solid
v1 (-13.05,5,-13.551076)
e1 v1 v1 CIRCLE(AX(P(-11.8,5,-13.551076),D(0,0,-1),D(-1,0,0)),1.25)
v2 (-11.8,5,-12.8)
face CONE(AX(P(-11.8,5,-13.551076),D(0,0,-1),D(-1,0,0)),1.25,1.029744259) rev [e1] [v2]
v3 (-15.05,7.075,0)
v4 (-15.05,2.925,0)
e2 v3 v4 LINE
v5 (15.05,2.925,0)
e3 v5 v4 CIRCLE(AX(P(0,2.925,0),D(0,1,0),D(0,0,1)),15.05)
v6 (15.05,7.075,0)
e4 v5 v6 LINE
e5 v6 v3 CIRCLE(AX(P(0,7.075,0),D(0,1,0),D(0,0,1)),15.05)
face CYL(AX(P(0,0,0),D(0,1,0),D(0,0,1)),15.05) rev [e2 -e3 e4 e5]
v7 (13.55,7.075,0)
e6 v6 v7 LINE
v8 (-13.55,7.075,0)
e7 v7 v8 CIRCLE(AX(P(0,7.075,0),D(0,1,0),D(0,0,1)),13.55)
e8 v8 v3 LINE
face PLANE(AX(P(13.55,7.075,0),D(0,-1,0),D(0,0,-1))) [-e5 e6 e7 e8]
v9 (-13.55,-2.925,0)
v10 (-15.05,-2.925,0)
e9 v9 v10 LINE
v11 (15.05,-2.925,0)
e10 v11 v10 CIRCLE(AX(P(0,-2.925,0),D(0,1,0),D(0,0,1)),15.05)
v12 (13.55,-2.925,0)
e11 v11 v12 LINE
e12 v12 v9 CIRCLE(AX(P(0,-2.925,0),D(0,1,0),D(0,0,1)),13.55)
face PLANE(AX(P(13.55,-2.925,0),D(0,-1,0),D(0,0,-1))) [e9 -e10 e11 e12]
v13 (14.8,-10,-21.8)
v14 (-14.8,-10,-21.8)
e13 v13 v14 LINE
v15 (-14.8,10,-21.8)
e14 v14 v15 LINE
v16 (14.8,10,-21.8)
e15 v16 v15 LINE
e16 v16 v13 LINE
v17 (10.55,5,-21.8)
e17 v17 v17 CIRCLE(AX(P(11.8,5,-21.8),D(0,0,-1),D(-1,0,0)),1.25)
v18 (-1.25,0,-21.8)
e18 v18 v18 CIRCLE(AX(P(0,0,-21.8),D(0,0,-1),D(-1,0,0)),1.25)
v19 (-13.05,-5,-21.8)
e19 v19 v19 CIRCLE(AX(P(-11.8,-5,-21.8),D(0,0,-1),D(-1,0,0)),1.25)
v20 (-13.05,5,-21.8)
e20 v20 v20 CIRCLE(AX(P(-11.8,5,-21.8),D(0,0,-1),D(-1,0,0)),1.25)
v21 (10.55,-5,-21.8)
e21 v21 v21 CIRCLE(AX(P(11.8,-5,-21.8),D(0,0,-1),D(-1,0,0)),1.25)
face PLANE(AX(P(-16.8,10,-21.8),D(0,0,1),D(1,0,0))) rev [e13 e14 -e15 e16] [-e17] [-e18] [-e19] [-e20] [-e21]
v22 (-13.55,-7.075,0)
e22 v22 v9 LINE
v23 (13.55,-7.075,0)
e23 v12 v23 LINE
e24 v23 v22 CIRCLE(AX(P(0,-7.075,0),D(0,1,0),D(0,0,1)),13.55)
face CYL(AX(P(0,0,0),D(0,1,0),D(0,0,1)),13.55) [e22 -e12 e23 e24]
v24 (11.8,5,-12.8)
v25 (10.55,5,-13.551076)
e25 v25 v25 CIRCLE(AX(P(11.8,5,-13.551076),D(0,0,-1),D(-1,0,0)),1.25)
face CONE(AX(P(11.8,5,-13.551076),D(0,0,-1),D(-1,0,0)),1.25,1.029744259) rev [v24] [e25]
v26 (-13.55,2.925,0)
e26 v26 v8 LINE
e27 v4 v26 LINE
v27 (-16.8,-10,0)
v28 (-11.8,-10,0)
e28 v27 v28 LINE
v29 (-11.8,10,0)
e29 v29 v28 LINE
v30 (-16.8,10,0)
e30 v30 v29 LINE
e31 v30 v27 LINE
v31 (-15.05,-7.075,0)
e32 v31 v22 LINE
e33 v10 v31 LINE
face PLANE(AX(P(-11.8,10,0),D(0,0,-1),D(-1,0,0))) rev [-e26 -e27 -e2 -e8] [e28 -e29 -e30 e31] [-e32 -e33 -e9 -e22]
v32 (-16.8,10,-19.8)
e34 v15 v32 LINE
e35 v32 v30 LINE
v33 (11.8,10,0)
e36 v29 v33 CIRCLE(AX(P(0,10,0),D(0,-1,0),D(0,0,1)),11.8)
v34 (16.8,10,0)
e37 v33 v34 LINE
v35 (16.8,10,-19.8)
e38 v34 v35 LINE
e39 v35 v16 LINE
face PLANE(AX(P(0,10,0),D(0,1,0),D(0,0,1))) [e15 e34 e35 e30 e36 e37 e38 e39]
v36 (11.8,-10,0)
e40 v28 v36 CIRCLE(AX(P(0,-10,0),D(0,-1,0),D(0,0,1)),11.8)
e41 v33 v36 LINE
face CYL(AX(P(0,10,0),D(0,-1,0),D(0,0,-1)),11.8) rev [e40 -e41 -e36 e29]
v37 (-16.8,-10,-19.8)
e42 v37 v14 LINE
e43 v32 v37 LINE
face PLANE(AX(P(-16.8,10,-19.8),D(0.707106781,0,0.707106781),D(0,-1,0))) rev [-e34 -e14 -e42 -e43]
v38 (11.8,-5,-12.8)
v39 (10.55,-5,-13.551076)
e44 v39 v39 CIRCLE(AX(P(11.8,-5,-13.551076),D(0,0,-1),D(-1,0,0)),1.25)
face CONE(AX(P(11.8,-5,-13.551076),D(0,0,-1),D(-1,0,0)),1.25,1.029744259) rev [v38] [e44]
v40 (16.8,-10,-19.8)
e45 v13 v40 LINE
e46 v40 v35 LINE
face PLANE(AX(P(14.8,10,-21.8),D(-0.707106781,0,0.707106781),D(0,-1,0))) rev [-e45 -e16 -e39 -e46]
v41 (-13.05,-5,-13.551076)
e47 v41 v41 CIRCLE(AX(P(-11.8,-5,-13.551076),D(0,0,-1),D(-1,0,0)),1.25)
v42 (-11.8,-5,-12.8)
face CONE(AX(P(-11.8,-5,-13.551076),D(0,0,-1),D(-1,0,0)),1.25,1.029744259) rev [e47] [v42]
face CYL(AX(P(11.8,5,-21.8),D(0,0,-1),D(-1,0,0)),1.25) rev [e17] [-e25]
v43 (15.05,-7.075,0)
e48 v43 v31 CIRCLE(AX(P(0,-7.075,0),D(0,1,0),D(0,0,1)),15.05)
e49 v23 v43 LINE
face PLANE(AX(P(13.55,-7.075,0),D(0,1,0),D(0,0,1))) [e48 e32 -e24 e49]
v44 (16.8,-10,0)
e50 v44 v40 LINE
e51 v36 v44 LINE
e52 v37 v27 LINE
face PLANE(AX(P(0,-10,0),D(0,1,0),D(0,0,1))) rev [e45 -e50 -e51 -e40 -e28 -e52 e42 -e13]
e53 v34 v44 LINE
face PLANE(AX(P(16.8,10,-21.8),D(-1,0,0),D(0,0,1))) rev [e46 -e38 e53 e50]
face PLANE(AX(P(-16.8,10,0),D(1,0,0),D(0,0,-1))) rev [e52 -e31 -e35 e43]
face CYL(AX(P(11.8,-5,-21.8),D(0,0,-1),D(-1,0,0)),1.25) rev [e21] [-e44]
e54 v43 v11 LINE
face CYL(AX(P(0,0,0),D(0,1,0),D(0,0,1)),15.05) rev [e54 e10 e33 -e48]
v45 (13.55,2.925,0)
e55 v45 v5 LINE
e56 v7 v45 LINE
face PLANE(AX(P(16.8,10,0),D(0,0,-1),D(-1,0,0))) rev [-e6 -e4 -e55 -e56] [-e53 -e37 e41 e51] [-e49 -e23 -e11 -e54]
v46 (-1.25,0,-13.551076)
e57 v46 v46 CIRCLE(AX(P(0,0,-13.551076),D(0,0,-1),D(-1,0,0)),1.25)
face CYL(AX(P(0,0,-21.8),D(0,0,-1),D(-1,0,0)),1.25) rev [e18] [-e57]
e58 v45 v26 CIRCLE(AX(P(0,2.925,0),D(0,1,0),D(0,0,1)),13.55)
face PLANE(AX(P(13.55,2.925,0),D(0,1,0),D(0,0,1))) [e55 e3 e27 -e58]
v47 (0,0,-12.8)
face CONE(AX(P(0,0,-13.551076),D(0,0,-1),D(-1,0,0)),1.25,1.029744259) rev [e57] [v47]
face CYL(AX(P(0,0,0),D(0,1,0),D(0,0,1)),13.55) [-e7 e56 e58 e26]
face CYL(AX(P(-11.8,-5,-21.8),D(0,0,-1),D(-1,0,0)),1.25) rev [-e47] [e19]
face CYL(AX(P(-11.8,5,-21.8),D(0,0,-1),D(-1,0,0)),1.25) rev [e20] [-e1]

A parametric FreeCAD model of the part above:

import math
import FreeCAD as App
import Part
import Sketcher
from FreeCAD import Vector


def edges_at(feature, points):
    """Names of the edges that pass closest to the given points."""
    edges = feature.Shape.Edges
    near = lambda p: min(range(len(edges)), key=lambda i: edges[i].distToShape(Part.Vertex(*p))[0])
    return sorted({f"Edge{near(p) + 1}" for p in points})

doc = App.newDocument("Part")
params = doc.addObject("Spreadsheet::Sheet", "Params")
for row, (alias, value) in enumerate([
    ("sketch1_radius", "11.8 mm"),
    ("sketch1_width", "5 mm"),
    ("sketch1_height", "21.8 mm"),
    ("pad1_length", "20 mm"),
    ("sketch2_width", "1.5 mm"),
    ("sketch2_height", "4.15 mm"),
    ("groove_angle", "360 deg"),
    ("sketch3_diameter", "2.5 mm"),
    ("hole_diameter", "2.5 mm"),
    ("hole_depth", "8.248924 mm"),
    ("chamfer_size", "2 mm"),
], start=1):
    params.set(f"A{row}", alias)
    params.set(f"B{row}", "=" + value)
    params.setAlias(f"B{row}", alias)

body = doc.addObject("PartDesign::Body", "Body")

sketch1 = body.newObject("Sketcher::SketchObject", "Sketch")
sketch1.AttachmentSupport = (doc.getObject("XZ_Plane"), [""])
sketch1.MapMode = "FlatFace"
sketch1.addGeometry([
    Part.LineSegment(Vector(-16.8, 0, 0), Vector(-11.8, 0, 0)),
    Part.ArcOfCircle(Part.Circle(Vector(0, 0, 0), Vector(0, 0, 1), 11.8), math.radians(180), math.radians(360)),
    Part.LineSegment(Vector(11.8, 0, 0), Vector(16.8, 0, 0)),
    Part.LineSegment(Vector(16.8, 0, 0), Vector(16.8, -21.8, 0)),
    Part.LineSegment(Vector(16.8, -21.8, 0), Vector(-16.8, -21.8, 0)),
    Part.LineSegment(Vector(-16.8, -21.8, 0), Vector(-16.8, 0, 0)),
], False)
sketch1.addConstraint([
    Sketcher.Constraint("Coincident", 0, 2, 1, 1),
    Sketcher.Constraint("Coincident", 1, 2, 2, 1),
    Sketcher.Constraint("Coincident", 2, 2, 3, 1),
    Sketcher.Constraint("Coincident", 3, 2, 4, 1),
    Sketcher.Constraint("Coincident", 4, 2, 5, 1),
    Sketcher.Constraint("Coincident", 5, 2, 0, 1),
    Sketcher.Constraint("Horizontal", 0),
    Sketcher.Constraint("Horizontal", 2),
    Sketcher.Constraint("Vertical", 3),
    Sketcher.Constraint("Horizontal", 4),
    Sketcher.Constraint("Vertical", 5),
    Sketcher.Constraint("Coincident", 1, 3, -1, 1),
    Sketcher.Constraint("Symmetric", 2, 2, 5, 2, -1, 1),
    Sketcher.Constraint("PointOnObject", 0, 2, -1),
    Sketcher.Constraint("Radius", 1, 11.8),
    Sketcher.Constraint("DistanceX", 0, 1, 0, 2, 5.0),
    Sketcher.Constraint("DistanceY", 3, 2, 3, 1, 21.8),
])
sketch1.setExpression("Constraints[14]", "Params.sketch1_radius")
sketch1.setExpression("Constraints[15]", "Params.sketch1_width")
sketch1.setExpression("Constraints[16]", "Params.sketch1_height")
pad1 = body.newObject("PartDesign::Pad", "Pad")
pad1.Profile = sketch1
pad1.setExpression("Length", "Params.pad1_length")
pad1.Midplane = True

sketch2 = body.newObject("Sketcher::SketchObject", "Sketch001")
sketch2.AttachmentSupport = (doc.getObject("XY_Plane"), [""])
sketch2.MapMode = "FlatFace"
sketch2.addGeometry([
    Part.LineSegment(Vector(13.55, 7.075, 0), Vector(13.55, 2.925, 0)),
    Part.LineSegment(Vector(13.55, 2.925, 0), Vector(15.05, 2.925, 0)),
    Part.LineSegment(Vector(15.05, 2.925, 0), Vector(15.05, 7.075, 0)),
    Part.LineSegment(Vector(15.05, 7.075, 0), Vector(13.55, 7.075, 0)),
    Part.LineSegment(Vector(13.55, -2.925, 0), Vector(13.55, -7.075, 0)),
    Part.LineSegment(Vector(13.55, -7.075, 0), Vector(15.05, -7.075, 0)),
    Part.LineSegment(Vector(15.05, -7.075, 0), Vector(15.05, -2.925, 0)),
    Part.LineSegment(Vector(15.05, -2.925, 0), Vector(13.55, -2.925, 0)),
], False)
sketch2.addConstraint([
    Sketcher.Constraint("Coincident", 0, 2, 1, 1),
    Sketcher.Constraint("Coincident", 1, 2, 2, 1),
    Sketcher.Constraint("Coincident", 2, 2, 3, 1),
    Sketcher.Constraint("Coincident", 3, 2, 0, 1),
    Sketcher.Constraint("Coincident", 4, 2, 5, 1),
    Sketcher.Constraint("Coincident", 5, 2, 6, 1),
    Sketcher.Constraint("Coincident", 6, 2, 7, 1),
    Sketcher.Constraint("Coincident", 7, 2, 4, 1),
    Sketcher.Constraint("Vertical", 0),
    Sketcher.Constraint("Horizontal", 1),
    Sketcher.Constraint("Vertical", 2),
    Sketcher.Constraint("Horizontal", 3),
    Sketcher.Constraint("Vertical", 4),
    Sketcher.Constraint("Horizontal", 5),
    Sketcher.Constraint("Vertical", 6),
    Sketcher.Constraint("Horizontal", 7),
    Sketcher.Constraint("Symmetric", 3, 2, 4, 2, -1),
    Sketcher.Constraint("Symmetric", 1, 2, 6, 2, -1),
    Sketcher.Constraint("DistanceX", 1, 1, 1, 2, 1.5),
    Sketcher.Constraint("DistanceY", 4, 2, 0, 2, 10.0),
    Sketcher.Constraint("DistanceY", 0, 2, 0, 1, 4.15),
    Sketcher.Constraint("DistanceX", -1, 1, 0, 2, 13.55),
])
sketch2.setExpression("Constraints[18]", "Params.sketch2_width")
sketch2.setExpression("Constraints[20]", "Params.sketch2_height")
groove = body.newObject("PartDesign::Groove", "Groove")
groove.Profile = sketch2
groove.ReferenceAxis = (sketch2, ["V_Axis"])
groove.setExpression("Angle", "Params.groove_angle")

sketch3 = body.newObject("Sketcher::SketchObject", "Sketch002")
sketch3.AttachmentSupport = (doc.getObject("XY_Plane"), [""])
sketch3.MapMode = "FlatFace"
sketch3.AttachmentOffset = App.Placement(Vector(0, 0, -21.8), App.Rotation())
sketch3.addGeometry([
    Part.Circle(Vector(0, 0, 0), Vector(0, 0, 1), 1.25),
    Part.Circle(Vector(-11.8, -5, 0), Vector(0, 0, 1), 1.25),
    Part.Circle(Vector(-11.8, 5, 0), Vector(0, 0, 1), 1.25),
    Part.Circle(Vector(11.8, 5, 0), Vector(0, 0, 1), 1.25),
    Part.Circle(Vector(11.8, -5, 0), Vector(0, 0, 1), 1.25),
], False)
sketch3.addConstraint([
    Sketcher.Constraint("Coincident", 0, 3, -1, 1),
    Sketcher.Constraint("Equal", 0, 1),
    Sketcher.Constraint("Equal", 1, 2),
    Sketcher.Constraint("Equal", 2, 3),
    Sketcher.Constraint("Equal", 3, 4),
    Sketcher.Constraint("Symmetric", 1, 3, 3, 3, -1, 1),
    Sketcher.Constraint("Symmetric", 2, 3, 4, 3, -1, 1),
    Sketcher.Constraint("Symmetric", 2, 3, 3, 3, -2),
    Sketcher.Constraint("Diameter", 0, 2.5),
    Sketcher.Constraint("DistanceY", 1, 3, -1, 1, 5.0),
    Sketcher.Constraint("DistanceX", 1, 3, -1, 1, 11.8),
])
sketch3.setExpression("Constraints[8]", "Params.sketch3_diameter")
doc.recompute()
hole = body.newObject("PartDesign::Hole", "Hole")
hole.Profile = sketch3
hole.ThreadType = "None"
hole.setExpression("Diameter", "Params.hole_diameter")
hole.DepthType = "Dimension"
hole.setExpression("Depth", "Params.hole_depth")
hole.DrillPoint = "Angled"
hole.DrillPointAngle = 118
hole.Reversed = True
doc.recompute()

chamfer = body.newObject("PartDesign::Chamfer", "Chamfer")
chamfer.Base = (hole, edges_at(hole, [(-16.8, 0, -21.8), (16.8, 0, -21.8)]))
chamfer.setExpression("Size", "Params.chamfer_size")

doc.recompute()
